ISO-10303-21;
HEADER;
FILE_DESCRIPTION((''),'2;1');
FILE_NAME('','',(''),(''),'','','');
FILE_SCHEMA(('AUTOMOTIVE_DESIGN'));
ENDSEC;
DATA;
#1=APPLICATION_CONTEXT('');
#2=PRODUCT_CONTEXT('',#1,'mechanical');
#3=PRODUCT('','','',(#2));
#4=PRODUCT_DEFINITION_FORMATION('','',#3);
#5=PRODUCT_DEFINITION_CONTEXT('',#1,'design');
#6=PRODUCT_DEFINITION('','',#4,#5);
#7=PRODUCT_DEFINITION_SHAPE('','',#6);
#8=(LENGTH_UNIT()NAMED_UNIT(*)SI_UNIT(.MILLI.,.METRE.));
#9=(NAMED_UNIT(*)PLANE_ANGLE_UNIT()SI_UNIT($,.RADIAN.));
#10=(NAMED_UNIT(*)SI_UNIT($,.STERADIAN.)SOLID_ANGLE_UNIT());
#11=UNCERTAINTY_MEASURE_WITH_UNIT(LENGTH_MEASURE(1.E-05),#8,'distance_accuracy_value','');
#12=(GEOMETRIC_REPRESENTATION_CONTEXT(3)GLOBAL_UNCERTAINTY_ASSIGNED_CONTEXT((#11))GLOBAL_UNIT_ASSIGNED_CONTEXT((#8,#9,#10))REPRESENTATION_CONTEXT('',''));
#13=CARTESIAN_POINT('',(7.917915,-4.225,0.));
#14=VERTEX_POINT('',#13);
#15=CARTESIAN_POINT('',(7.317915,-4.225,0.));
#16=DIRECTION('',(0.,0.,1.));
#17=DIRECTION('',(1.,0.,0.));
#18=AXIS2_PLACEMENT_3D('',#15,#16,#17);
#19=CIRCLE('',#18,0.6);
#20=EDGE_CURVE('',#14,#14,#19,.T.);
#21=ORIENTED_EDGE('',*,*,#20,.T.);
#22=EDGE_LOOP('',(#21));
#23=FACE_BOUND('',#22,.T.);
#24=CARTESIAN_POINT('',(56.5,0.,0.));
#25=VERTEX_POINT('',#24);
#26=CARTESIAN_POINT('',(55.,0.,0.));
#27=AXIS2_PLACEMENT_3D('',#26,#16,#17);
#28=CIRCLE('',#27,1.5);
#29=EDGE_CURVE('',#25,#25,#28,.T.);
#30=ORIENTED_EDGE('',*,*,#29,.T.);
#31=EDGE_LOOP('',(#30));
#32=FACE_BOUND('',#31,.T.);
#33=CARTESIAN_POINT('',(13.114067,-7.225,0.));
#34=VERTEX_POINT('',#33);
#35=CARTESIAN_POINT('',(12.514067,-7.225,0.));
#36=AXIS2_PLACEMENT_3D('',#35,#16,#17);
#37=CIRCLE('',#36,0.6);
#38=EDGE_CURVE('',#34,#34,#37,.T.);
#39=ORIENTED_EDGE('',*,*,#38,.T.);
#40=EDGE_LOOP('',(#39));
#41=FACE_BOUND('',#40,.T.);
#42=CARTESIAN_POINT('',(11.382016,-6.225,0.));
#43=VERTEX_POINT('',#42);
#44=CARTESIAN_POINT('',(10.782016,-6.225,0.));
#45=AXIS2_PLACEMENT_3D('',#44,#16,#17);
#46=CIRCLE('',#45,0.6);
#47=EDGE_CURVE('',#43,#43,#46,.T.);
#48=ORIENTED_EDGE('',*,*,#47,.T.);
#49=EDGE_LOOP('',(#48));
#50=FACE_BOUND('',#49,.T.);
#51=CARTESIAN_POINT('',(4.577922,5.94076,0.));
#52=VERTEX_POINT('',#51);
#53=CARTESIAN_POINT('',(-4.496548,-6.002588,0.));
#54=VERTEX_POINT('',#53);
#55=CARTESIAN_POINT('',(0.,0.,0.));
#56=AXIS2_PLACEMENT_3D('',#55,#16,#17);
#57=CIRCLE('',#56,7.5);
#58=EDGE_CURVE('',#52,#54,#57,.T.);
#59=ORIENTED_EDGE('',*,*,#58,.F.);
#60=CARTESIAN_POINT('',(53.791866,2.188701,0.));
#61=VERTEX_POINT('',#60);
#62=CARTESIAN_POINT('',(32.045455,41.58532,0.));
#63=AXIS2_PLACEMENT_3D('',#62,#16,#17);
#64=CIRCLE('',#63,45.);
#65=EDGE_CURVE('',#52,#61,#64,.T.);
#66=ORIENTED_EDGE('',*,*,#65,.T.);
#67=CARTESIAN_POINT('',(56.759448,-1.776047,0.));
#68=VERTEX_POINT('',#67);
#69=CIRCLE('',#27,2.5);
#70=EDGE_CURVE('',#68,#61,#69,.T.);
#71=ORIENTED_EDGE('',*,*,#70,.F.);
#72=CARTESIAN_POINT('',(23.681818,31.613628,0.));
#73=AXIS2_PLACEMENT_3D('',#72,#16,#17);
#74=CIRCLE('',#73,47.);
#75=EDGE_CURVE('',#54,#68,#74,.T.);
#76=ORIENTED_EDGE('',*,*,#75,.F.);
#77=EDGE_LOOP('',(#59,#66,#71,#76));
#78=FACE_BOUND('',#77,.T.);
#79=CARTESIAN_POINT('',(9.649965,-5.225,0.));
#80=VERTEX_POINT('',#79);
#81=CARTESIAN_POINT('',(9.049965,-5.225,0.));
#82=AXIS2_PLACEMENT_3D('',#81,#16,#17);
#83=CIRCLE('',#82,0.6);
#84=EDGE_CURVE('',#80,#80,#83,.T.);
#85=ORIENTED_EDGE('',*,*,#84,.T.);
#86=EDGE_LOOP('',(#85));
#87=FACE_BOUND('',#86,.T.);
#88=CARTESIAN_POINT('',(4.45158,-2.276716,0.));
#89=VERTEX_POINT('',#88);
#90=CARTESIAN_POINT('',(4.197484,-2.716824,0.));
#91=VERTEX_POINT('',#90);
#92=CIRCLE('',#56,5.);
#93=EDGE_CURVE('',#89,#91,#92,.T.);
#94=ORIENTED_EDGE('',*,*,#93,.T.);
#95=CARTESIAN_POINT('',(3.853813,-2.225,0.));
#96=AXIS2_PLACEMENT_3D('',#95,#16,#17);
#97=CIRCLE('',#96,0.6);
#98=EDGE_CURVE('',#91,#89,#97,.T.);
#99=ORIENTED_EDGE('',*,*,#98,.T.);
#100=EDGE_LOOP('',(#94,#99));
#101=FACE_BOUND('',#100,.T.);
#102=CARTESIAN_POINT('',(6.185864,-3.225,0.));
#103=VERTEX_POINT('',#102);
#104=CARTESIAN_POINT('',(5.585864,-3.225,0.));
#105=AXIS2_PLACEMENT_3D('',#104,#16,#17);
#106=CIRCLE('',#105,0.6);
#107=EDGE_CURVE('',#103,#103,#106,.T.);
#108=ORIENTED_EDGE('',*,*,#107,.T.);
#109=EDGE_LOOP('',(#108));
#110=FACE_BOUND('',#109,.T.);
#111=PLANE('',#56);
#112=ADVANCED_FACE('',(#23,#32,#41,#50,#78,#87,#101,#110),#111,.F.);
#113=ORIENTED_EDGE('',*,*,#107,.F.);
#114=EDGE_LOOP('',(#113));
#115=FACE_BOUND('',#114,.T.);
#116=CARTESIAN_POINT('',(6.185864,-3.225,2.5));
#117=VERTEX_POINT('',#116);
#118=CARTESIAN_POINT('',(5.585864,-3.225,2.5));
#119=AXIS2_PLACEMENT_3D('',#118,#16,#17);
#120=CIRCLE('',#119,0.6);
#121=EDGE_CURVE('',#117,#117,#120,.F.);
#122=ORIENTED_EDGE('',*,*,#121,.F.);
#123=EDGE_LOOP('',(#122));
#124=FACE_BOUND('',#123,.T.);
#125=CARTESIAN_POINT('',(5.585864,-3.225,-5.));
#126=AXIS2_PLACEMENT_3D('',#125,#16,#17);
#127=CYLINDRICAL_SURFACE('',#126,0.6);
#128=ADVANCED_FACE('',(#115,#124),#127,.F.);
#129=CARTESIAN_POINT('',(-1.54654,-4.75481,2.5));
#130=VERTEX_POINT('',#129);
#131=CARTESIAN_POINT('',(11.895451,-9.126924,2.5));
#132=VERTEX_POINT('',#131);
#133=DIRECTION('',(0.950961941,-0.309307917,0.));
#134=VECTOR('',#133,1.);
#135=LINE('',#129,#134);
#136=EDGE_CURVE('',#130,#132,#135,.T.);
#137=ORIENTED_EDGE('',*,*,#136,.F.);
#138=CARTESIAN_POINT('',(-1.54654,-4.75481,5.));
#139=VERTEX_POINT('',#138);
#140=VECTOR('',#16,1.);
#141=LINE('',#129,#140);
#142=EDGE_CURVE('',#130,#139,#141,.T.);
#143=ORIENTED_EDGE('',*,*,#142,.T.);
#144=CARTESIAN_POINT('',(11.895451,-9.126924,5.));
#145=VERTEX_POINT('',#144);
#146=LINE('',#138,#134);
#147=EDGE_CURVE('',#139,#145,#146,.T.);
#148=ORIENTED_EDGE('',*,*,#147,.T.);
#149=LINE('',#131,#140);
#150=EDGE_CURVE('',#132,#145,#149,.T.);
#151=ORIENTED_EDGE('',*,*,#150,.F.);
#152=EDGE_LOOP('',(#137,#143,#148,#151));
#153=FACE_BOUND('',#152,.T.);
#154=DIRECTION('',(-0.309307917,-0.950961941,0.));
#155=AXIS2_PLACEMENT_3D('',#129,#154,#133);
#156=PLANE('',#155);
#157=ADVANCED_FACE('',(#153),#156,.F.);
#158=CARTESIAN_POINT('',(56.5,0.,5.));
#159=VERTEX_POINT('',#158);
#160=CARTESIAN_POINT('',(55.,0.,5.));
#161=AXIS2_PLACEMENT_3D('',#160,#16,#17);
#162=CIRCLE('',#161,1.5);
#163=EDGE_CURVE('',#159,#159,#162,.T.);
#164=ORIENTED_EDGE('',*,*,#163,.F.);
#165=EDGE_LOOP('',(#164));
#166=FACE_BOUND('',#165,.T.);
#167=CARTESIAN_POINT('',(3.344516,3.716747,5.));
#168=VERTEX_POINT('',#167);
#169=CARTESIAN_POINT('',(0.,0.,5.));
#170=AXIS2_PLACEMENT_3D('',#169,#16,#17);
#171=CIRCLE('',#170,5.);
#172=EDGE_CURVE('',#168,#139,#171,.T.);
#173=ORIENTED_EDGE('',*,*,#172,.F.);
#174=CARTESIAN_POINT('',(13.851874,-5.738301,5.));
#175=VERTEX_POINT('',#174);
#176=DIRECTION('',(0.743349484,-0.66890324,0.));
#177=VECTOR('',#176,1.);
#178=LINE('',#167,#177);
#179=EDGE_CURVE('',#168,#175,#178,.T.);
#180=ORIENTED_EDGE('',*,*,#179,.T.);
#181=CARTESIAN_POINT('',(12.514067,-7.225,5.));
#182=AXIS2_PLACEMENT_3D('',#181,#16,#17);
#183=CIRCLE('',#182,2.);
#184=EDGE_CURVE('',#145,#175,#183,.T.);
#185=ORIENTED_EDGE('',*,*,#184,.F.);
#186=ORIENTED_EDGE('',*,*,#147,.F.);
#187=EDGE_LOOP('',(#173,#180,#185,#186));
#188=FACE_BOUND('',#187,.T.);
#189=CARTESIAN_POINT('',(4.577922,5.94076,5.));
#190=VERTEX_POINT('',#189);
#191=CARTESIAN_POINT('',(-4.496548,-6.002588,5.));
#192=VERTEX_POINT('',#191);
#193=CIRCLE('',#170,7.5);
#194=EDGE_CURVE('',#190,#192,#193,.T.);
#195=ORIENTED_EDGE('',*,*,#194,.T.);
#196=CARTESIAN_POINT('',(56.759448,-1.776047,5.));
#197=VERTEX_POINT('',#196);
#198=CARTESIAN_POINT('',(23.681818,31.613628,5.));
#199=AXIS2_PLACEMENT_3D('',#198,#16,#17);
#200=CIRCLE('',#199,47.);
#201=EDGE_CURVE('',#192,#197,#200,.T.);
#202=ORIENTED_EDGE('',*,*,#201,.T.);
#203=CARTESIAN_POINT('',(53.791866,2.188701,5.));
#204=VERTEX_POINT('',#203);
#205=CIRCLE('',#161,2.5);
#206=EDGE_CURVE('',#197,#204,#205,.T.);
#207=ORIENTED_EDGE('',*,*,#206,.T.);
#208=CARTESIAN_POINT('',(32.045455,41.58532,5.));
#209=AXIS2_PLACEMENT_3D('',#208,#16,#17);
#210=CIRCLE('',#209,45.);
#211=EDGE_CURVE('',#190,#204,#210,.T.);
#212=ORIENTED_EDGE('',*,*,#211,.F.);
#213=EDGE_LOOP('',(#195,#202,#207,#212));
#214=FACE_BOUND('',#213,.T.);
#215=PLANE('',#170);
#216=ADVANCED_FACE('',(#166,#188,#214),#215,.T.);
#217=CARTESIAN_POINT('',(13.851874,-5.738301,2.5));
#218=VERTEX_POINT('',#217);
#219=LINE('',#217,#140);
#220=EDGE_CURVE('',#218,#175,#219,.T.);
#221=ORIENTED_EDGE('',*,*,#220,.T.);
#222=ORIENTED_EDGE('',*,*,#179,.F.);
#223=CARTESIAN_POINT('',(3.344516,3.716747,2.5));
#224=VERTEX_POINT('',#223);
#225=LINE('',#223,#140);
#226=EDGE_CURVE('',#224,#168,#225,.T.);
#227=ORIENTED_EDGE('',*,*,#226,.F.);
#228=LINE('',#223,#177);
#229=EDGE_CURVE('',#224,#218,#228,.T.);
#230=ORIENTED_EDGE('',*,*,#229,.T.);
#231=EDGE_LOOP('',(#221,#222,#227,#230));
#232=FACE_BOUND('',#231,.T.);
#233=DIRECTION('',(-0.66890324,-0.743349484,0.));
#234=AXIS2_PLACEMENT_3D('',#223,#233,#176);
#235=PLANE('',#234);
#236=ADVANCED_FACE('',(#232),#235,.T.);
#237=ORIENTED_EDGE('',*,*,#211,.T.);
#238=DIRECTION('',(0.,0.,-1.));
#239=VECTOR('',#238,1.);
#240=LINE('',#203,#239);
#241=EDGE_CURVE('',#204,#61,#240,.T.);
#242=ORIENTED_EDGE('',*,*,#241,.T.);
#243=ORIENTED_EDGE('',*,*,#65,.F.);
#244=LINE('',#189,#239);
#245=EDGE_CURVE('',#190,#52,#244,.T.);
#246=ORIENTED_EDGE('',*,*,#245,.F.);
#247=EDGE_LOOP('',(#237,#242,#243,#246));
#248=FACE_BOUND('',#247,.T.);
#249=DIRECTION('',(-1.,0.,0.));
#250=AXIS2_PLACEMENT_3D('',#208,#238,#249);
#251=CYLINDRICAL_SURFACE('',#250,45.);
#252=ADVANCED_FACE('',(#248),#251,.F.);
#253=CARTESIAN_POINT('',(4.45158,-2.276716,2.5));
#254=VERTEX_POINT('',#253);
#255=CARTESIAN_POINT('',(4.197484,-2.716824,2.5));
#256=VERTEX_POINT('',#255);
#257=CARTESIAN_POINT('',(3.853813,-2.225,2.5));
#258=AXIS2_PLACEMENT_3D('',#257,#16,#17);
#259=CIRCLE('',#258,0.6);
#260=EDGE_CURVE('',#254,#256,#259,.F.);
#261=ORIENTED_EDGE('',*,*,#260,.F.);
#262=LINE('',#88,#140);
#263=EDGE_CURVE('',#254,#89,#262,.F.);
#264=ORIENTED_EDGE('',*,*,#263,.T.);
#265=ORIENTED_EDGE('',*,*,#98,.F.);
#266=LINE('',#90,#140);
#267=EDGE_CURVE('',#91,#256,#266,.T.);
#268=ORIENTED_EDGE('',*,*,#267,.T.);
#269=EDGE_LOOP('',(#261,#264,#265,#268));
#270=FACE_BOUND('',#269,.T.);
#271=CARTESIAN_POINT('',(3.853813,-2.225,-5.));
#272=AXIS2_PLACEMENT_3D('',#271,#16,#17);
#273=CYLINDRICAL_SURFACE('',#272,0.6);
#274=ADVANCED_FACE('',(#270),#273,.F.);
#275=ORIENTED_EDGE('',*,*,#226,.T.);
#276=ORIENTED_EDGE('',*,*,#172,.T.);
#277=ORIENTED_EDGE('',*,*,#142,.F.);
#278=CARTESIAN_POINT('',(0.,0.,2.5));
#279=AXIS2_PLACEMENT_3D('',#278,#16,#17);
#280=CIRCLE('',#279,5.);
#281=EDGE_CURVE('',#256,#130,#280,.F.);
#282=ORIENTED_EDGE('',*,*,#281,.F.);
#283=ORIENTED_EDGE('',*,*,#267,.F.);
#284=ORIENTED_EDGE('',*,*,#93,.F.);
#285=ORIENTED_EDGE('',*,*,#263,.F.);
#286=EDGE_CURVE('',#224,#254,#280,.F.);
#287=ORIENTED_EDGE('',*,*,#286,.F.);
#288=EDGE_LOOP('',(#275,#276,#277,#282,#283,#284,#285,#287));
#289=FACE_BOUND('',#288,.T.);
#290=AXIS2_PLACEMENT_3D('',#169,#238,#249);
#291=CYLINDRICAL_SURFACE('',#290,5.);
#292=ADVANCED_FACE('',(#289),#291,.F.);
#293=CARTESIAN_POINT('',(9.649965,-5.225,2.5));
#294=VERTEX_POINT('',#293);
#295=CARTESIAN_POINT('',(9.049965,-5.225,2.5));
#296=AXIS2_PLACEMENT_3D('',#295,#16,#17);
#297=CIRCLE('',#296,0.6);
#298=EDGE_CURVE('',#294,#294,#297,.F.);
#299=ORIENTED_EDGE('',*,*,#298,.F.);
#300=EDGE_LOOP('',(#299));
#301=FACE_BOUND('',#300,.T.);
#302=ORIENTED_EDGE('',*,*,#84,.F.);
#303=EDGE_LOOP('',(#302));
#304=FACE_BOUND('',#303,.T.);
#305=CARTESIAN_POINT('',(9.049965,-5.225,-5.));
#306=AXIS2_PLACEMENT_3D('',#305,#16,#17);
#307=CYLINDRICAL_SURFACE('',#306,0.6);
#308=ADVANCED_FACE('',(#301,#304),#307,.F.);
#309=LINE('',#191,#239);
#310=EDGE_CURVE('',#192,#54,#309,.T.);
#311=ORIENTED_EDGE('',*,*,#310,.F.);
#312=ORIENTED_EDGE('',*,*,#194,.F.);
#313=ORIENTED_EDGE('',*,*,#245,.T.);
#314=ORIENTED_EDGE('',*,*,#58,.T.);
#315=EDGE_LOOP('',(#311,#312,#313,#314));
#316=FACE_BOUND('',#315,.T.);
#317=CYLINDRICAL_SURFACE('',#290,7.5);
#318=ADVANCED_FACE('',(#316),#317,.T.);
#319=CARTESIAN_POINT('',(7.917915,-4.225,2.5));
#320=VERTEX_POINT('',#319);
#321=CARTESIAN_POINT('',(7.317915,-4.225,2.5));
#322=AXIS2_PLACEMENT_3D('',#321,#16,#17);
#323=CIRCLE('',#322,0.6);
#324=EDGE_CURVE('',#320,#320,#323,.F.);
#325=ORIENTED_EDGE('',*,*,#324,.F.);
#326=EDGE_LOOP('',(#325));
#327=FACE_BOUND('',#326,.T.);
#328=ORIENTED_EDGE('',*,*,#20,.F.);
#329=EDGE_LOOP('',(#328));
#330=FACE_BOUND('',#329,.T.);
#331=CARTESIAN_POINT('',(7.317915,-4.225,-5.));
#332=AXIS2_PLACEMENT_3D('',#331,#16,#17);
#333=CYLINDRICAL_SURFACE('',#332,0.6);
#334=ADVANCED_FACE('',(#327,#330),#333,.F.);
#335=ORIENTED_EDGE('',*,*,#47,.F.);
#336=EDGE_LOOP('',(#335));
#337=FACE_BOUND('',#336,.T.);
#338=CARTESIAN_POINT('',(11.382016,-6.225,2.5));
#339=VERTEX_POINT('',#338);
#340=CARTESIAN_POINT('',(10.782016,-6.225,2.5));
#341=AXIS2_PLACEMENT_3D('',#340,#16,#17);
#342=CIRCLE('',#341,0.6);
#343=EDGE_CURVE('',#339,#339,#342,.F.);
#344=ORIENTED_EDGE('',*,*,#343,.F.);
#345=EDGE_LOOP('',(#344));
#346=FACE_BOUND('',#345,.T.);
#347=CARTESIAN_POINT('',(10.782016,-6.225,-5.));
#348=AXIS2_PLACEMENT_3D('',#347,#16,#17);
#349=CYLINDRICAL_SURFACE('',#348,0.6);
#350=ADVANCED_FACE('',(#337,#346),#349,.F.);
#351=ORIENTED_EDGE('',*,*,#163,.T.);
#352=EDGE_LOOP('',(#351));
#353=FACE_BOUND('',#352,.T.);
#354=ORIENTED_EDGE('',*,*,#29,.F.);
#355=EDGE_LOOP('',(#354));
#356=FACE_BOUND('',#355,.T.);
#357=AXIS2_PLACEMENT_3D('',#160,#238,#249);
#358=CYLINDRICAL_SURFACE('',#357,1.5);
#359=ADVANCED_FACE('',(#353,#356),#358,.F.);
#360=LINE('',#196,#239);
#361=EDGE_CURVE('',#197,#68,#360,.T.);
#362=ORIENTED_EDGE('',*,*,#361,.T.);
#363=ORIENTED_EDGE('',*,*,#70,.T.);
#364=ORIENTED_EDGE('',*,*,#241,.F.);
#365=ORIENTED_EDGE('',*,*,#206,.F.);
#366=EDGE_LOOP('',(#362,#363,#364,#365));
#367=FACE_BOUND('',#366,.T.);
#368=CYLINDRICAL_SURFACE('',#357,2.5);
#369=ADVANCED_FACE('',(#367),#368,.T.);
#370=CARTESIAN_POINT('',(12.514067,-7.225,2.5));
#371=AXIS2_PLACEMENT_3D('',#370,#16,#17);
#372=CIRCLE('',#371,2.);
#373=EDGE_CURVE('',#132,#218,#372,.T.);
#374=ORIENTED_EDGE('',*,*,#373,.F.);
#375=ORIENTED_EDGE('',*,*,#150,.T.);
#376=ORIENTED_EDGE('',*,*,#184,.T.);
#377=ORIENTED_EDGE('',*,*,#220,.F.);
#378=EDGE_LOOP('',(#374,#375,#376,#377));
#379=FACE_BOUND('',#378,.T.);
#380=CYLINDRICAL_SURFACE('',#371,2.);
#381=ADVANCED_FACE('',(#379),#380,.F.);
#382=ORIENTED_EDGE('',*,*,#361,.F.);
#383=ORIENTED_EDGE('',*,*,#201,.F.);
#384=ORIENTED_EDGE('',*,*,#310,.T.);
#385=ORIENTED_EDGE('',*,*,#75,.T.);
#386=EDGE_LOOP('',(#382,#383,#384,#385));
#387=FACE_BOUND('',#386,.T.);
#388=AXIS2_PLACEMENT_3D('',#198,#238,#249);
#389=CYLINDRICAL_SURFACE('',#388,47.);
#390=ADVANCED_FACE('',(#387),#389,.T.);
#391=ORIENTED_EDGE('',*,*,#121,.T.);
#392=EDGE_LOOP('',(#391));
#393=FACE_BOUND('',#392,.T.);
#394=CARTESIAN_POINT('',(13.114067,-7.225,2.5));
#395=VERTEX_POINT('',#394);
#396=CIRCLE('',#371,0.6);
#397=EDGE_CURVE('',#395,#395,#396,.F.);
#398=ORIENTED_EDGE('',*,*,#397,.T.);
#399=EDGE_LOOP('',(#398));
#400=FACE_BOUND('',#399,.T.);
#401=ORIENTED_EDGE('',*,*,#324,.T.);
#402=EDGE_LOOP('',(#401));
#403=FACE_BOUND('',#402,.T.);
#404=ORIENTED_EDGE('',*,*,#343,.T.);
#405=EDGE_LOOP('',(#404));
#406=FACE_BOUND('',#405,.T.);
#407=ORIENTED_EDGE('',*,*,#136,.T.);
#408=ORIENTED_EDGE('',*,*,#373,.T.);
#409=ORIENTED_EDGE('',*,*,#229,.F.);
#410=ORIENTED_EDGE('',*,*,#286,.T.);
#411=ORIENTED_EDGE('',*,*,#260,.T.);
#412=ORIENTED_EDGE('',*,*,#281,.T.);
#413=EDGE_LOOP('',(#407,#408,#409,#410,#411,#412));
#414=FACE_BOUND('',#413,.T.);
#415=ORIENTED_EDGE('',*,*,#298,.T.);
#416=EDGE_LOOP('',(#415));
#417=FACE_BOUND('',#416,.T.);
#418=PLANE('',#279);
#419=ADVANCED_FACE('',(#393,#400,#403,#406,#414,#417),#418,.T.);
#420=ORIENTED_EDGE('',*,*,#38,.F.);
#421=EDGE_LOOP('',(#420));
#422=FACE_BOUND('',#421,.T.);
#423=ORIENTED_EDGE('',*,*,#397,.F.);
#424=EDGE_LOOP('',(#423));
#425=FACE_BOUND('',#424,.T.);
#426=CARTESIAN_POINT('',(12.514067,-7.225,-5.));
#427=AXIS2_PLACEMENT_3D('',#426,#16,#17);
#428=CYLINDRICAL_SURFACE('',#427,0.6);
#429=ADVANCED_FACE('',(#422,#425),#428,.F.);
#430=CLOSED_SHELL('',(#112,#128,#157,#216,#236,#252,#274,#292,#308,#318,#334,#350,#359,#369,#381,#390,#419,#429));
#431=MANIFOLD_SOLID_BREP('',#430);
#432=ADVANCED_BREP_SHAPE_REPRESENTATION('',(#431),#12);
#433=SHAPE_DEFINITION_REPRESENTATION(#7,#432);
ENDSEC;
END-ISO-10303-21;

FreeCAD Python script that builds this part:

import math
import FreeCAD as App
import Part
import Sketcher
Q = App.Units.Quantity

doc = App.newDocument("Part")
body = doc.addObject("PartDesign::Body", "Body")

# Sketch on XY plane
sketch1 = doc.addObject("Sketcher::SketchObject", "Sketch")
body.addObject(sketch1)
sketch1.AttachmentSupport = (doc.XY_Plane, [""])
sketch1.MapMode = "FlatFace"
sketch1.addGeometry(Part.ArcOfCircle(Part.Circle(App.Vector(32.045455, 41.58532, 0), App.Vector(0, 0, 1), 45), math.radians(-127.61768), math.radians(-61.101884)), False)
sketch1.addGeometry(Part.ArcOfCircle(Part.Circle(App.Vector(0, 0, 0), App.Vector(0, 0, 1), 7.5), math.radians(52.38232), math.radians(233.163062)), False)
sketch1.addGeometry(Part.ArcOfCircle(Part.Circle(App.Vector(23.681818, 31.613628, 0), App.Vector(0, 0, 1), 47), math.radians(-126.836938), math.radians(-45.268985)), False)
sketch1.addGeometry(Part.ArcOfCircle(Part.Circle(App.Vector(55, 0, 0), App.Vector(0, 0, 1), 2.5), math.radians(-45.268985), math.radians(118.898116)), False)
sketch1.addGeometry(Part.Circle(App.Vector(0, 0, 0), App.Vector(0, 0, 1), 5), False)
sketch1.addGeometry(Part.Circle(App.Vector(55, 0, 0), App.Vector(0, 0, 1), 1.5), False)
sketch1.addConstraint(Sketcher.Constraint("Tangent", 0, 1, 1, 1))
sketch1.addConstraint(Sketcher.Constraint("Tangent", 1, 2, 2, 1))
sketch1.addConstraint(Sketcher.Constraint("Tangent", 2, 2, 3, 1))
sketch1.addConstraint(Sketcher.Constraint("Tangent", 3, 2, 0, 2))
sketch1.addConstraint(Sketcher.Constraint("Coincident", 1, 3, -1, 1))
sketch1.addConstraint(Sketcher.Constraint("Coincident", 4, 3, -1, 1))
sketch1.addConstraint(Sketcher.Constraint("Coincident", 5, 3, 3, 3))
sketch1.addConstraint(Sketcher.Constraint("PointOnObject", 3, 3, -1))
sketch1.addConstraint(Sketcher.Constraint("Diameter", 4, Q("10 mm")))
sketch1.addConstraint(Sketcher.Constraint("Diameter", 5, Q("3 mm")))
sketch1.addConstraint(Sketcher.Constraint("Radius", 0, Q("45 mm")))
sketch1.addConstraint(Sketcher.Constraint("Radius", 2, Q("47 mm")))
sketch1.addConstraint(Sketcher.Constraint("Radius", 1, Q("7.5 mm")))
sketch1.addConstraint(Sketcher.Constraint("Radius", 3, Q("2.5 mm")))
sketch1.addConstraint(Sketcher.Constraint("DistanceX", -1, 1, 3, 3, Q("55 mm")))
pad1 = doc.addObject("PartDesign::Pad", "Pad")
body.addObject(pad1)
pad1.Profile = sketch1
pad1.Length = 5

# Sketch on XY plane
sketch2 = doc.addObject("Sketcher::SketchObject", "Sketch001")
body.addObject(sketch2)
sketch2.AttachmentSupport = (doc.XY_Plane, [""])
sketch2.MapMode = "FlatFace"
sketch2.AttachmentOffset = App.Placement(App.Vector(0, 0, 5), App.Rotation())
sketch2.addGeometry(Part.Circle(App.Vector(3.853813, -2.225, 0), App.Vector(0, 0, 1), 0.6), False)
sketch2.addGeometry(Part.Circle(App.Vector(5.585864, -3.225, 0), App.Vector(0, 0, 1), 0.6), False)
sketch2.addGeometry(Part.Circle(App.Vector(7.317915, -4.225, 0), App.Vector(0, 0, 1), 0.6), False)
sketch2.addGeometry(Part.Circle(App.Vector(9.049965, -5.225, 0), App.Vector(0, 0, 1), 0.6), False)
sketch2.addGeometry(Part.Circle(App.Vector(10.782016, -6.225, 0), App.Vector(0, 0, 1), 0.6), False)
sketch2.addGeometry(Part.Circle(App.Vector(12.514067, -7.225, 0), App.Vector(0, 0, 1), 0.6), False)
sketch2.addConstraint(Sketcher.Constraint("Equal", 0, 1))
sketch2.addConstraint(Sketcher.Constraint("Equal", 1, 2))
sketch2.addConstraint(Sketcher.Constraint("Equal", 2, 3))
sketch2.addConstraint(Sketcher.Constraint("Equal", 3, 4))
sketch2.addConstraint(Sketcher.Constraint("Equal", 4, 5))
sketch2.addConstraint(Sketcher.Constraint("Diameter", 0, Q("1.2 mm")))
sketch2.addConstraint(Sketcher.Constraint("DistanceY", 1, 3, 0, 3, Q("1 mm")))
sketch2.addConstraint(Sketcher.Constraint("DistanceY", 2, 3, 1, 3, Q("1 mm")))
sketch2.addConstraint(Sketcher.Constraint("DistanceY", 3, 3, 2, 3, Q("1 mm")))
sketch2.addConstraint(Sketcher.Constraint("DistanceY", 4, 3, 3, 3, Q("1 mm")))
sketch2.addConstraint(Sketcher.Constraint("DistanceY", 5, 3, 4, 3, Q("1 mm")))
sketch2.addConstraint(Sketcher.Constraint("DistanceY", 0, 3, -1, 1, Q("2.225 mm")))
sketch2.addConstraint(Sketcher.Constraint("DistanceX", 0, 3, 2, 3, Q("3.464102 mm")))
sketch2.addConstraint(Sketcher.Constraint("DistanceX", 1, 3, 3, 3, Q("3.464102 mm")))
sketch2.addConstraint(Sketcher.Constraint("DistanceX", 2, 3, 4, 3, Q("3.464102 mm")))
sketch2.addConstraint(Sketcher.Constraint("DistanceX", 3, 3, 5, 3, Q("3.464102 mm")))
sketch2.addConstraint(Sketcher.Constraint("DistanceX", 0, 3, 1, 3, Q("1.732051 mm")))
sketch2.addConstraint(Sketcher.Constraint("DistanceX", -1, 1, 0, 3, Q("3.853813 mm")))
pocket1 = doc.addObject("PartDesign::Pocket", "Pocket")
body.addObject(pocket1)
pocket1.Profile = sketch2
pocket1.Length = 10

# Sketch on XY plane
sketch3 = doc.addObject("Sketcher::SketchObject", "Sketch002")
body.addObject(sketch3)
sketch3.AttachmentSupport = (doc.XY_Plane, [""])
sketch3.MapMode = "FlatFace"
sketch3.AttachmentOffset = App.Placement(App.Vector(0, 0, 2.5), App.Rotation())
sketch3.addGeometry(Part.LineSegment(App.Vector(13.851874, -5.738301, 0), App.Vector(3.344516, 3.716747, 0)), False)
sketch3.addGeometry(Part.ArcOfCircle(Part.Circle(App.Vector(0, 0, 0), App.Vector(0, 0, 1), 5), math.radians(-108.017527), math.radians(48.017527)), False)
sketch3.addGeometry(Part.LineSegment(App.Vector(-1.54654, -4.75481, 0), App.Vector(11.895451, -9.126924, 0)), False)
sketch3.addGeometry(Part.ArcOfCircle(Part.Circle(App.Vector(12.514067, -7.225, 0), App.Vector(0, 0, 1), 2), math.radians(-108.017527), math.radians(48.017527)), False)
sketch3.addConstraint(Sketcher.Constraint("Tangent", 0, 2, 1, 2))
sketch3.addConstraint(Sketcher.Constraint("Tangent", 1, 1, 2, 1))
sketch3.addConstraint(Sketcher.Constraint("Tangent", 2, 2, 3, 1))
sketch3.addConstraint(Sketcher.Constraint("Tangent", 3, 2, 0, 1))
sketch3.addConstraint(Sketcher.Constraint("Coincident", 1, 3, -1, 1))
sketch3.addConstraint(Sketcher.Constraint("Radius", 1, Q("5 mm")))
sketch3.addConstraint(Sketcher.Constraint("Radius", 3, Q("2 mm")))
sketch3.addConstraint(Sketcher.Constraint("DistanceY", 3, 3, -1, 1, Q("7.225 mm")))
sketch3.addConstraint(Sketcher.Constraint("DistanceY", 3, 2, -1, 1, Q("5.738301 mm")))
pocket2 = doc.addObject("PartDesign::Pocket", "Pocket001")
body.addObject(pocket2)
pocket2.Profile = sketch3
pocket2.Length = 2.5
pocket2.Reversed = True

doc.recompute()
